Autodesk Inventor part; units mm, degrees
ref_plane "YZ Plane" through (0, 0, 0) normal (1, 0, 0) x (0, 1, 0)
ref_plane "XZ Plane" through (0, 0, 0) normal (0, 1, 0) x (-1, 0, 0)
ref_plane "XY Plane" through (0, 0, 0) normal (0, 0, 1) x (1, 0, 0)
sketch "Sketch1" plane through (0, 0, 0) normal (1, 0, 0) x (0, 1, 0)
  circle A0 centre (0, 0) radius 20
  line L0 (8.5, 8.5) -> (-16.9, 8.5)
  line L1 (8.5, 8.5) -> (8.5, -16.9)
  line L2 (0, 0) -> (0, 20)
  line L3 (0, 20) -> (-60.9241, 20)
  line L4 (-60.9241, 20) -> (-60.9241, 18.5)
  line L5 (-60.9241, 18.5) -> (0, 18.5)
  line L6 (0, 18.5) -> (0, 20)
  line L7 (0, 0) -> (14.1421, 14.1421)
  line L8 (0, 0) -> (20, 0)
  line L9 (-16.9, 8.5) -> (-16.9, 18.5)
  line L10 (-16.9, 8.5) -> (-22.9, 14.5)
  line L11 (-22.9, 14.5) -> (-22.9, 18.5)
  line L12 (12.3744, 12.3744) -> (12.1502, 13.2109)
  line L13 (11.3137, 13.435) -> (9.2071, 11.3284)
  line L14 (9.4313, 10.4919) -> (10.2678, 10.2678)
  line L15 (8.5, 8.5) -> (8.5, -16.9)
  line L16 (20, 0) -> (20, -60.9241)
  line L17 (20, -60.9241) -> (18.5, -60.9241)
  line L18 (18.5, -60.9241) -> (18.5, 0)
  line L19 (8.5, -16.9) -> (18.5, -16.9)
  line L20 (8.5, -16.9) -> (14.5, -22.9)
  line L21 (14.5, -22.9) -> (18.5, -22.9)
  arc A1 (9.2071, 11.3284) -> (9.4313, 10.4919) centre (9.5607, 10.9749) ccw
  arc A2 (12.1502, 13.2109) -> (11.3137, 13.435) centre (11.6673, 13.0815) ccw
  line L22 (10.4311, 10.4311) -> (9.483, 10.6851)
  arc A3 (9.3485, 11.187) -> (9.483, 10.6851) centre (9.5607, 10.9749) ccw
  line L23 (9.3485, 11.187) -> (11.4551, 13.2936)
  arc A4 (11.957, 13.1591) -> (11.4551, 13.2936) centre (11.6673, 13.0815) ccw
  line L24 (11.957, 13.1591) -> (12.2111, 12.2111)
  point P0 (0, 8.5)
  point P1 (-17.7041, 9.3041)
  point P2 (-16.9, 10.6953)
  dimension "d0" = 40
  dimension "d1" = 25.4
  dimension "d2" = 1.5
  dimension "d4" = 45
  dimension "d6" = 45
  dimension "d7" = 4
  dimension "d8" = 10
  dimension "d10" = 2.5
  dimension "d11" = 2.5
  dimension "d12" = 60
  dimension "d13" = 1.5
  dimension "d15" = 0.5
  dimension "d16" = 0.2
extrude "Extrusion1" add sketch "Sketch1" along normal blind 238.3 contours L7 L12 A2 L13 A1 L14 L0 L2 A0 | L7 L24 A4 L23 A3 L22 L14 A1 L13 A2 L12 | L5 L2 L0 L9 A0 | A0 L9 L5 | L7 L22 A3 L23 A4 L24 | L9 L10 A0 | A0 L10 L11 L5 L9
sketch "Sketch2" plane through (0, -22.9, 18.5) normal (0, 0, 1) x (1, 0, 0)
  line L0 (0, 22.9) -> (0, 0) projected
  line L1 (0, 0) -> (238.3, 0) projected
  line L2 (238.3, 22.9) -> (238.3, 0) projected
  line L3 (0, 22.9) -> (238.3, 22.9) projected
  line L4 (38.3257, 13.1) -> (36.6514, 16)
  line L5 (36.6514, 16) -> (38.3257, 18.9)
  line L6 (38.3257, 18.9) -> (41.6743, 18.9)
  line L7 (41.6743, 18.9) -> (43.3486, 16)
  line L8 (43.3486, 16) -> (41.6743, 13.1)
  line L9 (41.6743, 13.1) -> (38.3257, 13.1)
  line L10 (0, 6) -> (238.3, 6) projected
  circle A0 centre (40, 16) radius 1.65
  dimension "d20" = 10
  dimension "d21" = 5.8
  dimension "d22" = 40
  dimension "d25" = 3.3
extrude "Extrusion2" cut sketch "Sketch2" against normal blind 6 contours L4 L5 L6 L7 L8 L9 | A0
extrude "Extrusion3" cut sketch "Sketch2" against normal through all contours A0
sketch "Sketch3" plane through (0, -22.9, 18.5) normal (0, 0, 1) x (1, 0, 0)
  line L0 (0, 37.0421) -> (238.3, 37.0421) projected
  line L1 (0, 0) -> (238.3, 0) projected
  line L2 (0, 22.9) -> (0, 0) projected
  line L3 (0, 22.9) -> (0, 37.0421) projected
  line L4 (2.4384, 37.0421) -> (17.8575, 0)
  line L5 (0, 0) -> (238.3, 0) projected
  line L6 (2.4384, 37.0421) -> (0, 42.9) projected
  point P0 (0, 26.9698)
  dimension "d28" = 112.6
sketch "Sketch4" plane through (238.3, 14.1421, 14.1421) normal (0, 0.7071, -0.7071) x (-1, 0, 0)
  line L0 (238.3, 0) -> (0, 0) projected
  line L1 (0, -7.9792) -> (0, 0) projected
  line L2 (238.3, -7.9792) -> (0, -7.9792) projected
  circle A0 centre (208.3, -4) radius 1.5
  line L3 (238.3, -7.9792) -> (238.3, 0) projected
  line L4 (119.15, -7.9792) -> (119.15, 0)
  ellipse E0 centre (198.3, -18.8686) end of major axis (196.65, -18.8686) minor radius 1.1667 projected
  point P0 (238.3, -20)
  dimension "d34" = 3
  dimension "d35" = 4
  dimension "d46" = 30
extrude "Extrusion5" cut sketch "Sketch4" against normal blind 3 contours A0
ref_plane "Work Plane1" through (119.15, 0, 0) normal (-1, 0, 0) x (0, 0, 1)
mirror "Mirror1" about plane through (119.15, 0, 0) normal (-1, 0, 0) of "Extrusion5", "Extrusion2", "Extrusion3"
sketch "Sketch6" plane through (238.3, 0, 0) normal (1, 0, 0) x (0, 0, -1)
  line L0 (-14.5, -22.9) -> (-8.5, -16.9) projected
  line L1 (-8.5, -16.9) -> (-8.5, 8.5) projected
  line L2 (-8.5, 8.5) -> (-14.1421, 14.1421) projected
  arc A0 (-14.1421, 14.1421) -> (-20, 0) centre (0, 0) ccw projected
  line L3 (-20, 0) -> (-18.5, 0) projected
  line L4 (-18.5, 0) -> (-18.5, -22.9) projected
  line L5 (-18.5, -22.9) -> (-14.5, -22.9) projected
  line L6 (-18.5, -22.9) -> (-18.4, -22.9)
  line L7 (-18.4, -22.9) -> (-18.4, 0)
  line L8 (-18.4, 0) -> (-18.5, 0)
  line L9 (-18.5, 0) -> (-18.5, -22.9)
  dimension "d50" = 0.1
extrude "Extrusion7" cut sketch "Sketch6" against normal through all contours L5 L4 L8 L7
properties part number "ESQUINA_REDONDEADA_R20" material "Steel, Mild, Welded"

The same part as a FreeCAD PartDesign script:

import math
import FreeCAD as App
import Part
import Sketcher

V = App.Vector
Q = App.Units.Quantity

doc = App.newDocument("Part")
body = doc.addObject("PartDesign::Body", "Body")

sketch1 = body.newObject("Sketcher::SketchObject", "Sketch")
sketch1.AttachmentSupport = (doc.getObject("YZ_Plane"), [""])
sketch1.MapMode = "FlatFace"
sketch1.addGeometry([
    Part.ArcOfCircle(Part.Circle(V(0, 0, 0), V(0, 0, 1), 20), math.radians(45), math.radians(90)),
    Part.LineSegment(V(0, 20, 0), V(0, 18.5, 0)),
    Part.LineSegment(V(0, 18.5, 0), V(-22.9, 18.5, 0)),
    Part.LineSegment(V(-22.9, 18.5, 0), V(-22.9, 14.5, 0)),
    Part.LineSegment(V(-22.9, 14.5, 0), V(-16.9, 8.5, 0)),
    Part.LineSegment(V(-16.9, 8.5, 0), V(8.5, 8.5, 0)),
    Part.LineSegment(V(8.5, 8.5, 0), V(14.1, 14.1, 0)),
], False)
sketch1.addConstraint([
    Sketcher.Constraint("Coincident", 0, 2, 1, 1),
    Sketcher.Constraint("Coincident", 1, 2, 2, 1),
    Sketcher.Constraint("Coincident", 2, 2, 3, 1),
    Sketcher.Constraint("Coincident", 3, 2, 4, 1),
    Sketcher.Constraint("Coincident", 4, 2, 5, 1),
    Sketcher.Constraint("Coincident", 5, 2, 6, 1),
    Sketcher.Constraint("Coincident", 6, 2, 0, 1),
    Sketcher.Constraint("Vertical", 1),
    Sketcher.Constraint("Horizontal", 2),
    Sketcher.Constraint("Vertical", 3),
    Sketcher.Constraint("Horizontal", 5),
    Sketcher.Constraint("Coincident", 0, 3, -1, 1),
    Sketcher.Constraint("PointOnObject", 0, 2, -2),
    Sketcher.Constraint("Perpendicular", 4, 6),
    Sketcher.Constraint("Radius", 0, Q("20 mm")),
    Sketcher.Constraint("DistanceY", 3, 2, 3, 1, Q("4 mm")),
    Sketcher.Constraint("Angle", 4, Q("-45 deg")),
    Sketcher.Constraint("DistanceX", 5, 1, 5, 2, Q("25.4 mm")),
    Sketcher.Constraint("DistanceY", 1, 2, 1, 1, Q("1.5 mm")),
    Sketcher.Constraint("DistanceY", 4, 2, 2, 2, Q("10 mm")),
    Sketcher.Constraint("DistanceX", 2, 2, 2, 1, Q("22.9 mm")),
])
pad1 = body.newObject("PartDesign::Pad", "Pad")
pad1.Profile = sketch1
pad1.Length = 238.3

sketch2 = body.newObject("Sketcher::SketchObject", "Sketch001")
sketch2.AttachmentSupport = (doc.getObject("XY_Plane"), [""])
sketch2.MapMode = "FlatFace"
sketch2.AttachmentOffset = App.Placement(V(0, 0, 18.5), App.Rotation())
sketch2.addGeometry([
    Part.LineSegment(V(36.7, -6.9, 0), V(38.3, -9.8, 0)),
    Part.LineSegment(V(38.3, -9.8, 0), V(41.7, -9.8, 0)),
    Part.LineSegment(V(41.7, -9.8, 0), V(43.3, -6.9, 0)),
    Part.LineSegment(V(43.3, -6.9, 0), V(41.7, -4, 0)),
    Part.LineSegment(V(41.7, -4, 0), V(38.3, -4, 0)),
    Part.LineSegment(V(38.3, -4, 0), V(36.7, -6.9, 0)),
], False)
sketch2.addConstraint([
    Sketcher.Constraint("Coincident", 0, 2, 1, 1),
    Sketcher.Constraint("Coincident", 1, 2, 2, 1),
    Sketcher.Constraint("Coincident", 2, 2, 3, 1),
    Sketcher.Constraint("Coincident", 3, 2, 4, 1),
    Sketcher.Constraint("Coincident", 4, 2, 5, 1),
    Sketcher.Constraint("Coincident", 5, 2, 0, 1),
    Sketcher.Constraint("Horizontal", 1),
    Sketcher.Constraint("Horizontal", 4),
    Sketcher.Constraint("Parallel", 0, 3),
    Sketcher.Constraint("Parallel", 2, 5),
    Sketcher.Constraint("Horizontal", 2, 2, 5, 2),
    Sketcher.Constraint("Vertical", 1, 2, 3, 2),
    Sketcher.Constraint("Vertical", 0, 2, 4, 2),
    Sketcher.Constraint("DistanceY", 1, 2, 3, 2, Q("5.8 mm")),
    Sketcher.Constraint("Angle", 0, Q("-60.0002 deg")),
    Sketcher.Constraint("DistanceY", 3, 2, -1, 1, Q("4 mm")),
    Sketcher.Constraint("DistanceX", 1, 1, 1, 2, Q("3.3486 mm")),
    Sketcher.Constraint("DistanceX", -1, 1, 0, 2, Q("38.3257 mm")),
])
pocket1 = body.newObject("PartDesign::Pocket", "Pocket")
pocket1.Profile = sketch2
pocket1.Length = 6

sketch3 = body.newObject("Sketcher::SketchObject", "Sketch002")
sketch3.AttachmentSupport = (doc.getObject("XY_Plane"), [""])
sketch3.MapMode = "FlatFace"
sketch3.AttachmentOffset = App.Placement(V(0, 0, 18.5), App.Rotation())
sketch3.addGeometry(Part.Circle(V(40, -6.9, 0), V(0, 0, 1), 1.6), False)
sketch3.addConstraint([
    Sketcher.Constraint("Diameter", 0, Q("3.3 mm")),
    Sketcher.Constraint("DistanceX", -1, 1, 0, 3, Q("40 mm")),
    Sketcher.Constraint("DistanceY", 0, 3, -1, 1, Q("6.9 mm")),
])
pocket2 = body.newObject("PartDesign::Pocket", "Pocket001")
pocket2.Profile = sketch3
pocket2.Type = "ThroughAll"

sketch4 = body.newObject("Sketcher::SketchObject", "Sketch003")
sketch4.Placement = App.Placement(V(238.3, 14.1421, 14.1421), App.Rotation(V(-1, 0, 0), V(0, 0.707106781, 0.707106781), V(0, 0.707106781, -0.707106781), "ZXY"))
sketch4.addGeometry(Part.Circle(V(208.3, -4, 0), V(0, 0, 1), 1.5), False)
sketch4.addConstraint([
    Sketcher.Constraint("Diameter", 0, Q("3 mm")),
    Sketcher.Constraint("DistanceY", 0, 3, -1, 1, Q("4 mm")),
    Sketcher.Constraint("DistanceX", -1, 1, 0, 3, Q("208.3 mm")),
])
pocket3 = body.newObject("PartDesign::Pocket", "Pocket002")
pocket3.Profile = sketch4
pocket3.Length = 3
doc.recompute()

datumplane = body.newObject("PartDesign::Plane", "DatumPlane")
datumplane.AttachmentSupport = (doc.getObject("YZ_Plane"), [""])
datumplane.MapMode = "FlatFace"
datumplane.AttachmentOffset = App.Placement(V(0, 0, 119.15), App.Rotation())
mirrored = body.newObject("PartDesign::Mirrored", "Mirrored")
mirrored.Originals = [pocket3, pocket1, pocket2]
mirrored.MirrorPlane = (datumplane, [""])
body.Tip = mirrored

sketch5 = body.newObject("Sketcher::SketchObject", "Sketch004")
sketch5.AttachmentSupport = (doc.getObject("YZ_Plane"), [""])
sketch5.MapMode = "FlatFace"
sketch5.AttachmentOffset = App.Placement(V(0, 0, 238.3), App.Rotation())
sketch5.addGeometry([
    Part.LineSegment(V(-22.9, 18.5, 0), V(-22.9, 18.4, 0)),
    Part.LineSegment(V(-22.9, 18.4, 0), V(0, 18.4, 0)),
    Part.LineSegment(V(0, 18.4, 0), V(0, 18.5, 0)),
    Part.LineSegment(V(0, 18.5, 0), V(-22.9, 18.5, 0)),
], False)
sketch5.addConstraint([
    Sketcher.Constraint("Coincident", 0, 2, 1, 1),
    Sketcher.Constraint("Coincident", 1, 2, 2, 1),
    Sketcher.Constraint("Coincident", 2, 2, 3, 1),
    Sketcher.Constraint("Coincident", 3, 2, 0, 1),
    Sketcher.Constraint("Vertical", 0),
    Sketcher.Constraint("Horizontal", 1),
    Sketcher.Constraint("Vertical", 2),
    Sketcher.Constraint("Horizontal", 3),
    Sketcher.Constraint("PointOnObject", 1, 2, -2),
    Sketcher.Constraint("DistanceY", 0, 2, 0, 1, Q("0.1 mm")),
    Sketcher.Constraint("DistanceX", 1, 1, 1, 2, Q("22.9 mm")),
    Sketcher.Constraint("DistanceY", -1, 1, 0, 2, Q("18.4 mm")),
])
pocket4 = body.newObject("PartDesign::Pocket", "Pocket003")
pocket4.Profile = sketch5
pocket4.Type = "ThroughAll"

doc.recompute()
